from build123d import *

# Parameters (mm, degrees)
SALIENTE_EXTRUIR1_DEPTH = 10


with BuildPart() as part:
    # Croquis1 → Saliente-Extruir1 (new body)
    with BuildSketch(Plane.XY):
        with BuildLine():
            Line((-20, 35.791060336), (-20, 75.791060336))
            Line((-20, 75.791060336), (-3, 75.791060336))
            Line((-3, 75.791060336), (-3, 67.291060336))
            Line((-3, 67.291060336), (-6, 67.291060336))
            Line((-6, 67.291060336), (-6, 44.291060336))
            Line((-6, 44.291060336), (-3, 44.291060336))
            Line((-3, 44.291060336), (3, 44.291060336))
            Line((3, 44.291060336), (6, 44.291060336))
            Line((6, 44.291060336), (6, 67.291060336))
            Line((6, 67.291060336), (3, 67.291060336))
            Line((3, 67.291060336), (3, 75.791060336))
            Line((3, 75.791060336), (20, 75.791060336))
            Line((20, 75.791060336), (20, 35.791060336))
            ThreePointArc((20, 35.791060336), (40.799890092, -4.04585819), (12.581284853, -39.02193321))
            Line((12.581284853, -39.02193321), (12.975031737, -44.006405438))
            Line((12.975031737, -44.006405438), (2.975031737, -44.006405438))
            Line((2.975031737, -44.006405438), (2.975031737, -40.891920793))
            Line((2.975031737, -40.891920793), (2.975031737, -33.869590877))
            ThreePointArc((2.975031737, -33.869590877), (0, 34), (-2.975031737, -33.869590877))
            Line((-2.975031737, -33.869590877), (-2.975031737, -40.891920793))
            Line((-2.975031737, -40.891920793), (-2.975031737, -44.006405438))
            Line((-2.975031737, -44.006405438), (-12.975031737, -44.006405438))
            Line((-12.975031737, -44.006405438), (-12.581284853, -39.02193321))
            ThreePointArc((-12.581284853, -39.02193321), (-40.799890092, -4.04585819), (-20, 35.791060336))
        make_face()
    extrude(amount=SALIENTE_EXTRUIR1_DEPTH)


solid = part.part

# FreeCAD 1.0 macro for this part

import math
import FreeCAD as App
import Part
import Sketcher

V = App.Vector
Q = App.Units.Quantity

doc = App.newDocument("Part")
body = doc.addObject("PartDesign::Body", "Body")

sketch1 = doc.addObject("Sketcher::SketchObject", "Sketch")
body.addObject(sketch1)
sketch1.AttachmentSupport = (doc.XY_Plane, [""])
sketch1.MapMode = "FlatFace"
sketch1.addGeometry([
    Part.LineSegment(V(-20, 75.79106, 0), V(-20, 35.79106, 0)),
    Part.ArcOfCircle(Part.Circle(V(0, 0, 0), V(0, 0, 1), 41), math.radians(119.196404), math.radians(252.129862)),
    Part.LineSegment(V(-12.581285, -39.021933, 0), V(-12.975032, -44.006405, 0)),
    Part.LineSegment(V(-12.975032, -44.006405, 0), V(-2.975032, -44.006405, 0)),
    Part.LineSegment(V(-2.975032, -44.006405, 0), V(-2.975032, -33.869591, 0)),
    Part.ArcOfCircle(Part.Circle(V(0, 0, 0), V(0, 0, 1), 34), math.radians(-84.980146), math.radians(264.980146)),
    Part.LineSegment(V(2.975032, -33.869591, 0), V(2.975032, -44.006405, 0)),
    Part.LineSegment(V(2.975032, -44.006405, 0), V(12.975032, -44.006405, 0)),
    Part.LineSegment(V(12.975032, -44.006405, 0), V(12.581285, -39.021933, 0)),
    Part.ArcOfCircle(Part.Circle(V(0, 0, 0), V(0, 0, 1), 41), math.radians(-72.129862), math.radians(60.803596)),
    Part.LineSegment(V(20, 35.79106, 0), V(20, 75.79106, 0)),
    Part.LineSegment(V(20, 75.79106, 0), V(3, 75.79106, 0)),
    Part.LineSegment(V(3, 75.79106, 0), V(3, 67.29106, 0)),
    Part.LineSegment(V(3, 67.29106, 0), V(6, 67.29106, 0)),
    Part.LineSegment(V(6, 67.29106, 0), V(6, 44.29106, 0)),
    Part.LineSegment(V(6, 44.29106, 0), V(-6, 44.29106, 0)),
    Part.LineSegment(V(-6, 44.29106, 0), V(-6, 67.29106, 0)),
    Part.LineSegment(V(-6, 67.29106, 0), V(-3, 67.29106, 0)),
    Part.LineSegment(V(-3, 67.29106, 0), V(-3, 75.79106, 0)),
    Part.LineSegment(V(-3, 75.79106, 0), V(-20, 75.79106, 0)),
], False)
sketch1.addConstraint([
    Sketcher.Constraint("Coincident", 0, 2, 1, 1),
    Sketcher.Constraint("Coincident", 1, 2, 2, 1),
    Sketcher.Constraint("Coincident", 2, 2, 3, 1),
    Sketcher.Constraint("Coincident", 3, 2, 4, 1),
    Sketcher.Constraint("Coincident", 4, 2, 5, 2),
    Sketcher.Constraint("Coincident", 5, 1, 6, 1),
    Sketcher.Constraint("Coincident", 6, 2, 7, 1),
    Sketcher.Constraint("Coincident", 7, 2, 8, 1),
    Sketcher.Constraint("Coincident", 8, 2, 9, 1),
    Sketcher.Constraint("Coincident", 9, 2, 10, 1),
    Sketcher.Constraint("Coincident", 10, 2, 11, 1),
    Sketcher.Constraint("Coincident", 11, 2, 12, 1),
    Sketcher.Constraint("Coincident", 12, 2, 13, 1),
    Sketcher.Constraint("Coincident", 13, 2, 14, 1),
    Sketcher.Constraint("Coincident", 14, 2, 15, 1),
    Sketcher.Constraint("Coincident", 15, 2, 16, 1),
    Sketcher.Constraint("Coincident", 16, 2, 17, 1),
    Sketcher.Constraint("Coincident", 17, 2, 18, 1),
    Sketcher.Constraint("Coincident", 18, 2, 19, 1),
    Sketcher.Constraint("Coincident", 19, 2, 0, 1),
    Sketcher.Constraint("Vertical", 0),
    Sketcher.Constraint("Horizontal", 3),
    Sketcher.Constraint("Vertical", 4),
    Sketcher.Constraint("Vertical", 6),
    Sketcher.Constraint("Horizontal", 7),
    Sketcher.Constraint("Vertical", 10),
    Sketcher.Constraint("Horizontal", 11),
    Sketcher.Constraint("Vertical", 12),
    Sketcher.Constraint("Horizontal", 13),
    Sketcher.Constraint("Vertical", 14),
    Sketcher.Constraint("Horizontal", 15),
    Sketcher.Constraint("Vertical", 16),
    Sketcher.Constraint("Horizontal", 17),
    Sketcher.Constraint("Vertical", 18),
    Sketcher.Constraint("Horizontal", 19),
    Sketcher.Constraint("Coincident", 1, 3, -1, 1),
    Sketcher.Constraint("Coincident", 5, 3, -1, 1),
    Sketcher.Constraint("Coincident", 9, 3, -1, 1),
    Sketcher.Constraint("Equal", 1, 9),
    Sketcher.Constraint("Symmetric", 3, 2, 6, 2, -2),
    Sketcher.Constraint("Symmetric", 13, 2, 16, 2, -2),
    Sketcher.Constraint("Symmetric", 11, 2, 18, 2, -2),
    Sketcher.Constraint("Horizontal", 1, 2, 8, 2),
    Sketcher.Constraint("Horizontal", 0, 2, 9, 2),
    Sketcher.Constraint("Equal", 3, 7),
    Sketcher.Constraint("Radius", 1, Q("41 mm")),
    Sketcher.Constraint("Radius", 5, Q("34 mm")),
    Sketcher.Constraint("DistanceX", 3, 1, 3, 2, Q("10 mm")),
    Sketcher.Constraint("DistanceX", 11, 2, 11, 1, Q("17 mm")),
    Sketcher.Constraint("DistanceX", 13, 1, 13, 2, Q("3 mm")),
    Sketcher.Constraint("DistanceX", 15, 2, 15, 1, Q("12 mm")),
    Sketcher.Constraint("DistanceY", 0, 2, 0, 1, Q("40 mm")),
    Sketcher.Constraint("DistanceY", 14, 2, 14, 1, Q("23 mm")),
    Sketcher.Constraint("Distance", 2, Q("5 mm")),
    Sketcher.Constraint("DistanceY", 12, 2, 12, 1, Q("8.5 mm")),
    Sketcher.Constraint("DistanceY", 4, 1, 4, 2, Q("10.136815 mm")),
    Sketcher.Constraint("DistanceX", 2, 2, -1, 1, Q("12.975032 mm")),
])
pad1 = doc.addObject("PartDesign::Pad", "Pad")
body.addObject(pad1)
pad1.Profile = sketch1
pad1.Length = 10

doc.recompute()
